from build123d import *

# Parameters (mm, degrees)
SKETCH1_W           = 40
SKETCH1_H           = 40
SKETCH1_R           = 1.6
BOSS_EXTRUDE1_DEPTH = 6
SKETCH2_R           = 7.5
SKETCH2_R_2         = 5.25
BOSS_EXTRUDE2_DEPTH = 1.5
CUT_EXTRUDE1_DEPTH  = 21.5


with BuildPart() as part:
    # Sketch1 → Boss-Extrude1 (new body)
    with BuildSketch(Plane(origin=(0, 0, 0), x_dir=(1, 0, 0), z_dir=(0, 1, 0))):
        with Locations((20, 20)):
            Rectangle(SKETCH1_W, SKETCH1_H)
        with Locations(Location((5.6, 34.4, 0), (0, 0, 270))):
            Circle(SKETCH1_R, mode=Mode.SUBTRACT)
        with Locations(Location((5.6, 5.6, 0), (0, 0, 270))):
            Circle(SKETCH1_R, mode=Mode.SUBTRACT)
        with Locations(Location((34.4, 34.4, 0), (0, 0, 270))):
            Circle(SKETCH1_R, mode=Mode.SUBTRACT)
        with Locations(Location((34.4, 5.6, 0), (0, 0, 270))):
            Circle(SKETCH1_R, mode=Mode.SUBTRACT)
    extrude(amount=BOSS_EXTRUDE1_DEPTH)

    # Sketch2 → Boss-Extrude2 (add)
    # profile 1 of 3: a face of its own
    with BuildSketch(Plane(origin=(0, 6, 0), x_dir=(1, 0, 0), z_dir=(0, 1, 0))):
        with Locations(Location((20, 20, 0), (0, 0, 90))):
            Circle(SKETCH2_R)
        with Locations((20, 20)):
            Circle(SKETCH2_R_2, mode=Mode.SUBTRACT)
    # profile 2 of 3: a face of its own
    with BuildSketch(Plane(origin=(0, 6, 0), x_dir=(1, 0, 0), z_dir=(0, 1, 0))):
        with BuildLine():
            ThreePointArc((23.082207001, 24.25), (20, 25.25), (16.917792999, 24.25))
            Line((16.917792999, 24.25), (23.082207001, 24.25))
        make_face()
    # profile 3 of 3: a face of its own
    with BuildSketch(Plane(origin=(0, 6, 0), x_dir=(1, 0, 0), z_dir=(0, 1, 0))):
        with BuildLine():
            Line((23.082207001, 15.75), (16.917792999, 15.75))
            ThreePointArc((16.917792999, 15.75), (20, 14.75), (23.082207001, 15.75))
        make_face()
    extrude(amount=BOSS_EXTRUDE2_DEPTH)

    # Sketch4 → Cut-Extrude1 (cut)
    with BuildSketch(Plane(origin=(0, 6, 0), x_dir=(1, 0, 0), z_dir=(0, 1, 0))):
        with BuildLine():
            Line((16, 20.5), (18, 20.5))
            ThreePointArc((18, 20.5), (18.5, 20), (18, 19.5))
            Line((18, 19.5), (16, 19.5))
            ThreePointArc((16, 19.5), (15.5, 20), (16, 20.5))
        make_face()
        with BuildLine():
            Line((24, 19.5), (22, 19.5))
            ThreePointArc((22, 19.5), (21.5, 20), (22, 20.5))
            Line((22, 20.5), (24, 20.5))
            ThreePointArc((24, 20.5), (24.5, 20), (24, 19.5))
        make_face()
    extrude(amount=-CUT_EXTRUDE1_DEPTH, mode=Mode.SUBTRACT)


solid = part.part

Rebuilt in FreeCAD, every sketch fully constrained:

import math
import FreeCAD as App
import Part
import Sketcher
from FreeCAD import Vector


def add_polygon(sketch, points):
    """Adds a closed chain of lines whose ends are joined by coincident constraints."""
    first, n = sketch.GeometryCount, len(points)
    for a, b in zip(points, points[1:] + points[:1]):
        sketch.addGeometry(Part.LineSegment(App.Vector(*a, 0), App.Vector(*b, 0)), False)
    for i in range(n):
        sketch.addConstraint(Sketcher.Constraint("Coincident", first + i, 2, first + (i + 1) % n, 1))

doc = App.newDocument("Part")
params = doc.addObject("Spreadsheet::Sheet", "Params")
for row, (alias, value) in enumerate([
    ("sketch1_diameter", "3.2 mm"),
    ("sketch1_width", "40 mm"),
    ("pad1_length", "6 mm"),
    ("sketch2_diameter", "15 mm"),
    ("sketch2_radius", "5.25 mm"),
    ("pad2_length", "1.5 mm"),
    ("sketch3_radius", "0.5 mm"),
    ("sketch3_width", "2 mm"),
    ("pocket1_length", "21.5 mm"),
], start=1):
    params.set(f"A{row}", alias)
    params.set(f"B{row}", "=" + value)
    params.setAlias(f"B{row}", alias)

body = doc.addObject("PartDesign::Body", "Body")

# Sketch on XZ plane
sketch1 = doc.addObject("Sketcher::SketchObject", "Sketch")
body.addObject(sketch1)
sketch1.AttachmentSupport = (doc.XZ_Plane, [""])
sketch1.MapMode = "FlatFace"
add_polygon(sketch1, [(0, -40), (0, 0), (40, 0), (40, -40)])  # lines 0-3
sketch1.addGeometry(Part.Circle(Vector(5.6, -5.6, 0), Vector(0, 0, 1), 1.6), False)  # 4
sketch1.addGeometry(Part.Circle(Vector(34.4, -5.6, 0), Vector(0, 0, 1), 1.6), False)  # 5
sketch1.addGeometry(Part.Circle(Vector(5.6, -34.4, 0), Vector(0, 0, 1), 1.6), False)  # 6
sketch1.addGeometry(Part.Circle(Vector(34.4, -34.4, 0), Vector(0, 0, 1), 1.6), False)  # 7
sketch1.addConstraint([
    Sketcher.Constraint("Vertical", 0),
    Sketcher.Constraint("Horizontal", 1),
    Sketcher.Constraint("Vertical", 2),
    Sketcher.Constraint("Horizontal", 3),
    Sketcher.Constraint("Coincident", 0, 2, -1, 1),
    Sketcher.Constraint("Equal", 4, 5),
    Sketcher.Constraint("Equal", 5, 6),
    Sketcher.Constraint("Equal", 6, 7),
    Sketcher.Constraint("Horizontal", 4, 3, 5, 3),
    Sketcher.Constraint("Horizontal", 6, 3, 7, 3),
    Sketcher.Constraint("Vertical", 4, 3, 6, 3),
    Sketcher.Constraint("Vertical", 5, 3, 7, 3),
    Sketcher.Constraint("Equal", 3, 0),
    Sketcher.Constraint("Diameter", 4, 3.2),
    Sketcher.Constraint("DistanceX", 1, 1, 1, 2, 40.0),
    Sketcher.Constraint("DistanceX", -1, 1, 4, 3, 5.6),
    Sketcher.Constraint("DistanceY", 4, 3, -1, 1, 5.6),
    Sketcher.Constraint("DistanceX", -1, 1, 5, 3, 34.4),
    Sketcher.Constraint("DistanceY", 6, 3, -1, 1, 34.4),
])
sketch1.setExpression("Constraints[17]", "Params.sketch1_diameter")
sketch1.setExpression("Constraints[18]", "Params.sketch1_width")
pad1 = doc.addObject("PartDesign::Pad", "Pad")
body.addObject(pad1)
pad1.Profile = sketch1
pad1.setExpression("Length", "Params.pad1_length")
pad1.Reversed = True

# Sketch on XZ plane
sketch2 = doc.addObject("Sketcher::SketchObject", "Sketch001")
body.addObject(sketch2)
sketch2.AttachmentSupport = (doc.XZ_Plane, [""])
sketch2.MapMode = "FlatFace"
sketch2.AttachmentOffset = App.Placement(Vector(0, 0, -6), App.Rotation())
sketch2.addGeometry([
    Part.Circle(Vector(20, -20, 0), Vector(0, 0, 1), 8),  # 0
    Part.ArcOfCircle(Part.Circle(Vector(20, -20, 0), Vector(0, 0, 1), 5), math.radians(-54), math.radians(54)),  # 1
    Part.LineSegment(Vector(23, -16, 0), Vector(17, -16, 0)),  # 2
    Part.ArcOfCircle(Part.Circle(Vector(20, -20, 0), Vector(0, 0, 1), 5), math.radians(126), math.radians(234)),  # 3
    Part.LineSegment(Vector(17, -24, 0), Vector(23, -24, 0)),  # 4
], False)
sketch2.addConstraint([
    Sketcher.Constraint("Coincident", 1, 2, 2, 1),
    Sketcher.Constraint("Coincident", 2, 2, 3, 1),
    Sketcher.Constraint("Coincident", 3, 2, 4, 1),
    Sketcher.Constraint("Coincident", 4, 2, 1, 1),
    Sketcher.Constraint("Horizontal", 2),
    Sketcher.Constraint("Horizontal", 4),
    Sketcher.Constraint("Coincident", 1, 3, 0, 3),
    Sketcher.Constraint("Coincident", 3, 3, 0, 3),
    Sketcher.Constraint("Equal", 1, 3),
    Sketcher.Constraint("Vertical", 2, 2, 3, 2),
    Sketcher.Constraint("Diameter", 0, 15.0),
    Sketcher.Constraint("Radius", 1, 5.25),
    Sketcher.Constraint("DistanceX", -1, 1, 0, 3, 20.0),
    Sketcher.Constraint("DistanceY", 0, 3, -1, 1, 20.0),
    Sketcher.Constraint("DistanceY", 3, 2, 2, 2, 8.5),
])
sketch2.setExpression("Constraints[10]", "Params.sketch2_diameter")
sketch2.setExpression("Constraints[11]", "Params.sketch2_radius")
pad2 = doc.addObject("PartDesign::Pad", "Pad001")
body.addObject(pad2)
pad2.Profile = sketch2
pad2.setExpression("Length", "Params.pad2_length")
pad2.Reversed = True

# Sketch on XZ plane
sketch3 = doc.addObject("Sketcher::SketchObject", "Sketch002")
body.addObject(sketch3)
sketch3.AttachmentSupport = (doc.XZ_Plane, [""])
sketch3.MapMode = "FlatFace"
sketch3.AttachmentOffset = App.Placement(Vector(0, 0, -6), App.Rotation())
sketch3.addGeometry([
    Part.LineSegment(Vector(18, -20.5, 0), Vector(16, -20.5, 0)),  # 0
    Part.ArcOfCircle(Part.Circle(Vector(16, -20, 0), Vector(0, 0, 1), 0.5), math.radians(90), math.radians(270)),  # 1
    Part.LineSegment(Vector(16, -19.5, 0), Vector(18, -19.5, 0)),  # 2
    Part.ArcOfCircle(Part.Circle(Vector(18, -20, 0), Vector(0, 0, 1), 0.5), math.radians(-90), math.radians(90)),  # 3
    Part.LineSegment(Vector(22, -19.5, 0), Vector(24, -19.5, 0)),  # 4
    Part.ArcOfCircle(Part.Circle(Vector(24, -20, 0), Vector(0, 0, 1), 0.5), math.radians(-90), math.radians(90)),  # 5
    Part.LineSegment(Vector(24, -20.5, 0), Vector(22, -20.5, 0)),  # 6
    Part.ArcOfCircle(Part.Circle(Vector(22, -20, 0), Vector(0, 0, 1), 0.5), math.radians(90), math.radians(270)),  # 7
], False)
sketch3.addConstraint([
    Sketcher.Constraint("Tangent", 0, 2, 1, 2),
    Sketcher.Constraint("Tangent", 1, 1, 2, 1),
    Sketcher.Constraint("Tangent", 2, 2, 3, 2),
    Sketcher.Constraint("Tangent", 3, 1, 0, 1),
    Sketcher.Constraint("Tangent", 4, 2, 5, 2),
    Sketcher.Constraint("Tangent", 5, 1, 6, 1),
    Sketcher.Constraint("Tangent", 6, 2, 7, 2),
    Sketcher.Constraint("Tangent", 7, 1, 4, 1),
    Sketcher.Constraint("Horizontal", 0),
    Sketcher.Constraint("Horizontal", 2),
    Sketcher.Constraint("Horizontal", 4),
    Sketcher.Constraint("Horizontal", 6),
    Sketcher.Constraint("Equal", 3, 5),
    Sketcher.Constraint("Horizontal", 3, 3, 5, 3),
    Sketcher.Constraint("Equal", 2, 4),
    Sketcher.Constraint("Radius", 1, 0.5),
    Sketcher.Constraint("DistanceX", 0, 2, 0, 1, 2.0),
    Sketcher.Constraint("DistanceX", -1, 1, 1, 3, 16.0),
    Sketcher.Constraint("DistanceY", 1, 3, -1, 1, 20.0),
    Sketcher.Constraint("DistanceX", -1, 1, 5, 3, 24.0),
])
sketch3.setExpression("Constraints[15]", "Params.sketch3_radius")
sketch3.setExpression("Constraints[16]", "Params.sketch3_width")
pocket1 = doc.addObject("PartDesign::Pocket", "Pocket")
body.addObject(pocket1)
pocket1.Profile = sketch3
pocket1.setExpression("Length", "Params.pocket1_length")
pocket1.Reversed = True

doc.recompute()
